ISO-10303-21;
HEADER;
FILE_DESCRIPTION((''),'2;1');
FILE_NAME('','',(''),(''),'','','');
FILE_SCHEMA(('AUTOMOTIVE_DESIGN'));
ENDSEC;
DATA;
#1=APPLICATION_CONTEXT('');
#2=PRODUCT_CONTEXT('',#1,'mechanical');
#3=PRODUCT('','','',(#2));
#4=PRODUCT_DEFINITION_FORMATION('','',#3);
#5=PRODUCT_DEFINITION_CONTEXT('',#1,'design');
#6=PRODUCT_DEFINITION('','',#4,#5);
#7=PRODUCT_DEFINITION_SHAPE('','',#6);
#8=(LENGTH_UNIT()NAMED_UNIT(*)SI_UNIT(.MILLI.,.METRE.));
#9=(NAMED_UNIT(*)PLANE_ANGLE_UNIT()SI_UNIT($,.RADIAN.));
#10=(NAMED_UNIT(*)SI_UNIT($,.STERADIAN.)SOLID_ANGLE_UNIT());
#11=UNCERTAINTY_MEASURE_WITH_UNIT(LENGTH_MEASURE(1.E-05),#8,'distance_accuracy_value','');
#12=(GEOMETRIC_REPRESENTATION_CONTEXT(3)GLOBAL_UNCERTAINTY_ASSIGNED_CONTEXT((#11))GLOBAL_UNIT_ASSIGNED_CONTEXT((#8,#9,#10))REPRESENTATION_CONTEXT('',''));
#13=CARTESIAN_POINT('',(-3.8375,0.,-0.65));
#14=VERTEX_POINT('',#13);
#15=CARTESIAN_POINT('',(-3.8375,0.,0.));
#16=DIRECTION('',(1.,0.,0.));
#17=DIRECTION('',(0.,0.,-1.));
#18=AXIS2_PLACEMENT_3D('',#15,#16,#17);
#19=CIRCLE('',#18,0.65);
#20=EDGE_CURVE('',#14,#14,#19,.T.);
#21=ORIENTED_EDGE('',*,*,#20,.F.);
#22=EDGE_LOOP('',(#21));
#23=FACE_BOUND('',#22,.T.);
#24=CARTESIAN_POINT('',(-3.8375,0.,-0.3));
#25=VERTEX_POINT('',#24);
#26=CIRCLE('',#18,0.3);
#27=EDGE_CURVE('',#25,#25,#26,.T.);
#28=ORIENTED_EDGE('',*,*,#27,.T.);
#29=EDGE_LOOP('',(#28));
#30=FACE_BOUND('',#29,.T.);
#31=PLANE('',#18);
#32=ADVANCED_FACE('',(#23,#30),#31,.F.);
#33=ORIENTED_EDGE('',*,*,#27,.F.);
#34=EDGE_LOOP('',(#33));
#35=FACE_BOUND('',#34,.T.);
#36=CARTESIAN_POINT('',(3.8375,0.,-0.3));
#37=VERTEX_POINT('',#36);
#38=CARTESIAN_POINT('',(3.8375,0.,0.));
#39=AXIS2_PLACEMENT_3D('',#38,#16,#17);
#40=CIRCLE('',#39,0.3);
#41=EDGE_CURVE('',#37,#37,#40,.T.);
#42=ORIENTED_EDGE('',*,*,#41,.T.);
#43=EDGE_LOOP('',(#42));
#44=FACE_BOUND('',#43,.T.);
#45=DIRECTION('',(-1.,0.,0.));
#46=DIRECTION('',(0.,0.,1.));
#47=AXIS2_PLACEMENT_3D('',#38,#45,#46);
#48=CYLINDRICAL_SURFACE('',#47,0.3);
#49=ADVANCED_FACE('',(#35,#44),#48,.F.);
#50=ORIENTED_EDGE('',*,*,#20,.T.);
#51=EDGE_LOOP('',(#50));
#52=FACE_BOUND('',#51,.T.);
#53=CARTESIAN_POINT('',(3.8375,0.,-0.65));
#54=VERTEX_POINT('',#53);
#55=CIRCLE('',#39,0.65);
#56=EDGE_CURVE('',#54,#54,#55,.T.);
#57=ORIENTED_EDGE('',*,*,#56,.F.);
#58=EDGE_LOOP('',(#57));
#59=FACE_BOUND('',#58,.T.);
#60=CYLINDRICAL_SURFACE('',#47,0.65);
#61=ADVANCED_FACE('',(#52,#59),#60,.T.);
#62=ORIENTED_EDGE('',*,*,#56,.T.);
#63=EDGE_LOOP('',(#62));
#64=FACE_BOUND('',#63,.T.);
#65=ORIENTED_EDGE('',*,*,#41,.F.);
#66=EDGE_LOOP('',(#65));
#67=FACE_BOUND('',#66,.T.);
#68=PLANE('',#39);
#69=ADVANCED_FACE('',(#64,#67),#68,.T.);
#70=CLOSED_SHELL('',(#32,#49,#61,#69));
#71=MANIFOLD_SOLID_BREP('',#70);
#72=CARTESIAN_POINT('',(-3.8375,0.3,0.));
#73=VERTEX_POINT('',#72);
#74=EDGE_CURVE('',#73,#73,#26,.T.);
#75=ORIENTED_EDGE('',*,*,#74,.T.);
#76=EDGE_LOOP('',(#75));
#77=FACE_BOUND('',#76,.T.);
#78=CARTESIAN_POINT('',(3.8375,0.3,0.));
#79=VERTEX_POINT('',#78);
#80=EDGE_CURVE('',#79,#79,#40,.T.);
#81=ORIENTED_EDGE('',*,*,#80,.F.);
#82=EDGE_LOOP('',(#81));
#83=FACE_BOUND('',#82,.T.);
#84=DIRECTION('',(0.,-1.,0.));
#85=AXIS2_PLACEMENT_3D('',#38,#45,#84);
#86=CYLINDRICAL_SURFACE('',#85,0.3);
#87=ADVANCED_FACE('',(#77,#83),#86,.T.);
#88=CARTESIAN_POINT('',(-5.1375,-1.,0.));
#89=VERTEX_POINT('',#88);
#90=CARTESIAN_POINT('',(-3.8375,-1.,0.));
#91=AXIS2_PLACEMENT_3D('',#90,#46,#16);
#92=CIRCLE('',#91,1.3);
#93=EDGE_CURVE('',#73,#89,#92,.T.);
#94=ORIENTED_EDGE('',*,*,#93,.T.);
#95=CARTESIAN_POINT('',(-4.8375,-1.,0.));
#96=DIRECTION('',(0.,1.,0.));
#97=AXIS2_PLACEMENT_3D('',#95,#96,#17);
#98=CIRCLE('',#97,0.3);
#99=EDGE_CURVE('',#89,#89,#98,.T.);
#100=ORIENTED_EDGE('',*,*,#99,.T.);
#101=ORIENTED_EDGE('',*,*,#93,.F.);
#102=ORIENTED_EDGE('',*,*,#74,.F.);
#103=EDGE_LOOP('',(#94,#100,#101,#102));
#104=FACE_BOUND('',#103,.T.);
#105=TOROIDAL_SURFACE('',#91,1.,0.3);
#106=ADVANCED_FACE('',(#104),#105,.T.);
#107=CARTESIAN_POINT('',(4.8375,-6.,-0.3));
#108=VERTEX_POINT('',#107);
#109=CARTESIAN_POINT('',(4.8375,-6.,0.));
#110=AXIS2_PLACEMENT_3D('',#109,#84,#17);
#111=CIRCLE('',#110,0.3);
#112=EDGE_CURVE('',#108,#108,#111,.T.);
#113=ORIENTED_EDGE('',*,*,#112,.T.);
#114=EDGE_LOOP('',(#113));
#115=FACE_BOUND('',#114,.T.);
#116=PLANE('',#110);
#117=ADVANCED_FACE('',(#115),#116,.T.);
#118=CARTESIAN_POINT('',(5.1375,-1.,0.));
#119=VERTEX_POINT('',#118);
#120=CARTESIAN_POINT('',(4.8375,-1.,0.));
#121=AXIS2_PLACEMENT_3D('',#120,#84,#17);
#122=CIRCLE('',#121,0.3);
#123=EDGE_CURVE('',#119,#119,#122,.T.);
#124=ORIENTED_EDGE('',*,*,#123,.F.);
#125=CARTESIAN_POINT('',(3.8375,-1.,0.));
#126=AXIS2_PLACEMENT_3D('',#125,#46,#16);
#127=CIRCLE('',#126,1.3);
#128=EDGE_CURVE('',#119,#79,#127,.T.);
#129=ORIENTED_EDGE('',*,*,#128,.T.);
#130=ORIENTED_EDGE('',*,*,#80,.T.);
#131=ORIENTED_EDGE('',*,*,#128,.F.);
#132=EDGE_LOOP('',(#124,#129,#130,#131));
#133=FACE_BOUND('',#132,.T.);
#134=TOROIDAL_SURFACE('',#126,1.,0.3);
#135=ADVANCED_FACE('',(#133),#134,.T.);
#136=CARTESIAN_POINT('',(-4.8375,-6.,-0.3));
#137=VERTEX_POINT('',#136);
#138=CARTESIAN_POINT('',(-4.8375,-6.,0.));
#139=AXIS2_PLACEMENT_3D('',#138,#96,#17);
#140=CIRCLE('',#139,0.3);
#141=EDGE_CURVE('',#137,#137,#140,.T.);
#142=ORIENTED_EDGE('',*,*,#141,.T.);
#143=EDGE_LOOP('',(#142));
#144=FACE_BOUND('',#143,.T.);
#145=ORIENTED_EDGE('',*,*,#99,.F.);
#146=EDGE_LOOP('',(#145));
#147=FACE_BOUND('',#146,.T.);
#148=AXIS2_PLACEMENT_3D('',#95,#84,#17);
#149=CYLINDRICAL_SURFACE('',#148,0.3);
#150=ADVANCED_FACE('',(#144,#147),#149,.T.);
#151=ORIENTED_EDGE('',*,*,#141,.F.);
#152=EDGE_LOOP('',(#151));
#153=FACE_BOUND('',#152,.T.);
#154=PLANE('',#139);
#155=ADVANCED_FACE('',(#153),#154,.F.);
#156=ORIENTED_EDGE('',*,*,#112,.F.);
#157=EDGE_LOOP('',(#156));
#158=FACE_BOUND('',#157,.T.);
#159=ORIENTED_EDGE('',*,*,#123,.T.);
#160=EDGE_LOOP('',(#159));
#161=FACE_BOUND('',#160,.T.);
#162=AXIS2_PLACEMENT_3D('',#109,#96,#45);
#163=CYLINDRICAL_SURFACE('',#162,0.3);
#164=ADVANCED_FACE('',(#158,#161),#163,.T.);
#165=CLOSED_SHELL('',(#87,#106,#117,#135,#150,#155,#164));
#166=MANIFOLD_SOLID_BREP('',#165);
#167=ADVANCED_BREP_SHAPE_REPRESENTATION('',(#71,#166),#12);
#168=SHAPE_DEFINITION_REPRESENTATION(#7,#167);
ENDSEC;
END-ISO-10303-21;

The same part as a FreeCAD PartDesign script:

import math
import FreeCAD as App
import Part
import Sketcher
from FreeCAD import Vector

doc = App.newDocument("Part")
body = doc.addObject("PartDesign::Body", "Body")

# Sketch on YZ plane
sketch1 = body.newObject("Sketcher::SketchObject", "Sketch")
sketch1.AttachmentSupport = (doc.getObject("YZ_Plane"), [""])
sketch1.MapMode = "FlatFace"
sketch1.addGeometry(Part.Circle(Vector(0, 0, 0), Vector(0, 0, 1), 0.3), False)
sketch1.addConstraint(Sketcher.Constraint("Coincident", 0, 3, -1, 1))
sketch1.addConstraint(Sketcher.Constraint("Diameter", 0, 0.6))

# Sketch on XY plane
sketch2 = body.newObject("Sketcher::SketchObject", "Sketch001")
sketch2.AttachmentSupport = (doc.getObject("XY_Plane"), [""])
sketch2.MapMode = "FlatFace"
sketch2.addGeometry(Part.LineSegment(Vector(-4.8, -6, 0), Vector(-4.8, -1, 0)), False)
sketch2.addGeometry(Part.ArcOfCircle(Part.Circle(Vector(-3.8, -1, 0), Vector(0, 0, 1), 1), math.radians(90), math.radians(180)), False)
sketch2.addGeometry(Part.LineSegment(Vector(-3.8, 0, 0), Vector(3.8, 0, 0)), False)
sketch2.addGeometry(Part.ArcOfCircle(Part.Circle(Vector(3.8, -1, 0), Vector(0, 0, 1), 1), math.radians(0), math.radians(90)), False)
sketch2.addGeometry(Part.LineSegment(Vector(4.8, -1, 0), Vector(4.8, -6, 0)), False)
sketch2.addConstraint(Sketcher.Constraint("Tangent", 0, 2, 1, 2))
sketch2.addConstraint(Sketcher.Constraint("Tangent", 1, 1, 2, 1))
sketch2.addConstraint(Sketcher.Constraint("Tangent", 2, 2, 3, 2))
sketch2.addConstraint(Sketcher.Constraint("Tangent", 3, 1, 4, 1))
sketch2.addConstraint(Sketcher.Constraint("Vertical", 0))
sketch2.addConstraint(Sketcher.Constraint("Horizontal", 2))
sketch2.addConstraint(Sketcher.Constraint("Vertical", 4))
sketch2.addConstraint(Sketcher.Constraint("Equal", 1, 3))
sketch2.addConstraint(Sketcher.Constraint("Symmetric", 1, 1, 2, 2, -1, 1))
sketch2.addConstraint(Sketcher.Constraint("Horizontal", 0, 1, 4, 2))
sketch2.addConstraint(Sketcher.Constraint("Radius", 1, 1.0))
sketch2.addConstraint(Sketcher.Constraint("DistanceY", 0, 1, 0, 2, 5.0))
sketch2.addConstraint(Sketcher.Constraint("DistanceX", 2, 1, 2, 2, 7.675))
doc.recompute()

additivepipe = body.newObject("PartDesign::AdditivePipe", "AdditivePipe")
additivepipe.Profile = sketch1
additivepipe.Spine = (sketch2, ["Edge1", "Edge2", "Edge3", "Edge4", "Edge5"])
body2 = doc.addObject("PartDesign::Body", "Body001")

# Sketch on YZ plane
sketch3 = body2.newObject("Sketcher::SketchObject", "Sketch002")
sketch3.AttachmentSupport = (doc.getObject("YZ_Plane001"), [""])
sketch3.MapMode = "FlatFace"
sketch3.addGeometry(Part.Circle(Vector(0, 0, 0), Vector(0, 0, 1), 0.65), False)
sketch3.addGeometry(Part.Circle(Vector(0, 0, 0), Vector(0, 0, 1), 0.3), False)
sketch3.addConstraint(Sketcher.Constraint("Coincident", 0, 3, -1, 1))
sketch3.addConstraint(Sketcher.Constraint("Coincident", 1, 3, -1, 1))
sketch3.addConstraint(Sketcher.Constraint("Diameter", 0, 1.3))
sketch3.addConstraint(Sketcher.Constraint("Diameter", 1, 0.6))
pad1 = body2.newObject("PartDesign::Pad", "Pad")
pad1.Profile = sketch3
pad1.Type = "TwoLengths"
pad1.Length = 3.8375
pad1.Length2 = 3.8375

doc.recompute()
